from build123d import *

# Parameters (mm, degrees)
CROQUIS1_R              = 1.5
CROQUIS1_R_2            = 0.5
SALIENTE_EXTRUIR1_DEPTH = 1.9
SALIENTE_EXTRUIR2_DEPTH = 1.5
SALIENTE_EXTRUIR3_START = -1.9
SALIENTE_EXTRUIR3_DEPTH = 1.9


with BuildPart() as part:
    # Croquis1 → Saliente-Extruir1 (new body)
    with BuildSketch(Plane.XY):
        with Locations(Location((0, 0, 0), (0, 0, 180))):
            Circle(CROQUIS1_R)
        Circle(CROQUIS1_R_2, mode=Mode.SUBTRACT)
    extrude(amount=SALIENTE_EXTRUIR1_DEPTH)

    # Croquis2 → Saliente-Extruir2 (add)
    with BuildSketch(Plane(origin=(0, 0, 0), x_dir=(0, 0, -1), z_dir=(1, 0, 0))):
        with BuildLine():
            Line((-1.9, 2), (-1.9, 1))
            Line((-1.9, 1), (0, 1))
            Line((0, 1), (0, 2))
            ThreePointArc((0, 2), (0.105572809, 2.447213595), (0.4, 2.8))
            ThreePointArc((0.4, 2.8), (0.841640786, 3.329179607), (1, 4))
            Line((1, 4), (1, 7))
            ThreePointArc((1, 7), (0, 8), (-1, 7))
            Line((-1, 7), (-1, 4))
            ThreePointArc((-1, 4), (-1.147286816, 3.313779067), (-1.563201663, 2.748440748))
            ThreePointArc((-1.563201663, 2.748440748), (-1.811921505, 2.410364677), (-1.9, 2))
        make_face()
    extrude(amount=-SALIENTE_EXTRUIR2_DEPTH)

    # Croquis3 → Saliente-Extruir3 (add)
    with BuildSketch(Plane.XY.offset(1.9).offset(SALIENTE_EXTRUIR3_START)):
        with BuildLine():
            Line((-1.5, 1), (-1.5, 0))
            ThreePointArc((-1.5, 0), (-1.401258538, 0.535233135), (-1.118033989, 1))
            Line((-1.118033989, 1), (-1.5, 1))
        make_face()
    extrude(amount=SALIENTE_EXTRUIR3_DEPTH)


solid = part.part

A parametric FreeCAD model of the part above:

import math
import FreeCAD as App
import Part
import Sketcher

V = App.Vector

doc = App.newDocument("Part")
body = doc.addObject("PartDesign::Body", "Body")

sketch1 = body.newObject("Sketcher::SketchObject", "Sketch")
sketch1.AttachmentSupport = (doc.getObject("XY_Plane"), [""])
sketch1.MapMode = "FlatFace"
sketch1.addGeometry([
    Part.Circle(V(0, 0, 0), V(0, 0, 1), 1.5),
    Part.Circle(V(0, 0, 0), V(0, 0, 1), 0.5),
], False)
sketch1.addConstraint([
    Sketcher.Constraint("Coincident", 0, 3, -1, 1),
    Sketcher.Constraint("Coincident", 1, 3, -1, 1),
    Sketcher.Constraint("Diameter", 0, 3.0),
    Sketcher.Constraint("Diameter", 1, 1.0),
])
pad1 = body.newObject("PartDesign::Pad", "Pad")
pad1.Profile = sketch1
pad1.Length = 1.9

sketch2 = body.newObject("Sketcher::SketchObject", "Sketch001")
sketch2.AttachmentSupport = (doc.getObject("YZ_Plane"), [""])
sketch2.MapMode = "FlatFace"
sketch2.addGeometry([
    Part.LineSegment(V(2, 1.9, 0), V(1, 1.9, 0)),
    Part.LineSegment(V(1, 1.9, 0), V(1, 0, 0)),
    Part.LineSegment(V(1, 0, 0), V(2, 0, 0)),
    Part.ArcOfCircle(Part.Circle(V(2, -1, 0), V(0, 0, 1), 1), math.radians(37), math.radians(90)),
    Part.ArcOfCircle(Part.Circle(V(4, 0.5, 0), V(0, 0, 1), 1.5), math.radians(-143), math.radians(-90)),
    Part.LineSegment(V(4, -1, 0), V(7, -1, 0)),
    Part.ArcOfCircle(Part.Circle(V(7, 0, 0), V(0, 0, 1), 1), math.radians(-90), math.radians(90)),
    Part.LineSegment(V(7, 1, 0), V(4, 1, 0)),
    Part.ArcOfCircle(Part.Circle(V(4, 2.7, 0), V(0, 0, 1), 1.7), math.radians(-138), math.radians(-90)),
    Part.ArcOfCircle(Part.Circle(V(2, 0.9, 0), V(0, 0, 1), 1), math.radians(42), math.radians(90)),
], False)
sketch2.addConstraint([
    Sketcher.Constraint("Coincident", 0, 2, 1, 1),
    Sketcher.Constraint("Coincident", 1, 2, 2, 1),
    Sketcher.Constraint("Tangent", 2, 2, 3, 2),
    Sketcher.Constraint("Tangent", 3, 1, 4, 1),
    Sketcher.Constraint("Tangent", 4, 2, 5, 1),
    Sketcher.Constraint("Tangent", 5, 2, 6, 1),
    Sketcher.Constraint("Tangent", 6, 2, 7, 1),
    Sketcher.Constraint("Tangent", 7, 2, 8, 2),
    Sketcher.Constraint("Tangent", 8, 1, 9, 1),
    Sketcher.Constraint("Tangent", 9, 2, 0, 1),
    Sketcher.Constraint("Horizontal", 0),
    Sketcher.Constraint("Vertical", 1),
    Sketcher.Constraint("Horizontal", 2),
    Sketcher.Constraint("Horizontal", 5),
    Sketcher.Constraint("Horizontal", 7),
    Sketcher.Constraint("Equal", 3, 6),
    Sketcher.Constraint("Equal", 6, 9),
    Sketcher.Constraint("Symmetric", 4, 2, 7, 2, -1),
    Sketcher.Constraint("PointOnObject", 1, 2, -1),
    Sketcher.Constraint("Vertical", 3, 3, 9, 3),
    Sketcher.Constraint("Radius", 3, 1.0),
    Sketcher.Constraint("Radius", 4, 1.5),
    Sketcher.Constraint("DistanceX", 0, 2, 0, 1, 1.0),
    Sketcher.Constraint("DistanceX", 5, 1, 5, 2, 3.0),
    Sketcher.Constraint("DistanceY", 1, 2, 1, 1, 1.9),
    Sketcher.Constraint("DistanceX", -1, 1, 3, 3, 2.0),
])
pad2 = body.newObject("PartDesign::Pad", "Pad001")
pad2.Profile = sketch2
pad2.Length = 1.5
pad2.Reversed = True

sketch3 = body.newObject("Sketcher::SketchObject", "Sketch002")
sketch3.AttachmentSupport = (doc.getObject("XY_Plane"), [""])
sketch3.MapMode = "FlatFace"
sketch3.addGeometry([
    Part.LineSegment(V(-1.5, 1, 0), V(-1.5, 0, 0)),
    Part.ArcOfCircle(Part.Circle(V(0, 0, 0), V(0, 0, 1), 1.5), math.radians(138), math.radians(180)),
    Part.LineSegment(V(-1.12, 1, 0), V(-1.5, 1, 0)),
], False)
sketch3.addConstraint([
    Sketcher.Constraint("Tangent", 0, 2, 1, 2),
    Sketcher.Constraint("Coincident", 1, 1, 2, 1),
    Sketcher.Constraint("Coincident", 2, 2, 0, 1),
    Sketcher.Constraint("Vertical", 0),
    Sketcher.Constraint("Horizontal", 2),
    Sketcher.Constraint("Coincident", 1, 3, -1, 1),
    Sketcher.Constraint("Radius", 1, 1.5),
    Sketcher.Constraint("DistanceY", 0, 2, 0, 1, 1.0),
])
pad3 = body.newObject("PartDesign::Pad", "Pad002")
pad3.Profile = sketch3
pad3.Length = 1.9

doc.recompute()
